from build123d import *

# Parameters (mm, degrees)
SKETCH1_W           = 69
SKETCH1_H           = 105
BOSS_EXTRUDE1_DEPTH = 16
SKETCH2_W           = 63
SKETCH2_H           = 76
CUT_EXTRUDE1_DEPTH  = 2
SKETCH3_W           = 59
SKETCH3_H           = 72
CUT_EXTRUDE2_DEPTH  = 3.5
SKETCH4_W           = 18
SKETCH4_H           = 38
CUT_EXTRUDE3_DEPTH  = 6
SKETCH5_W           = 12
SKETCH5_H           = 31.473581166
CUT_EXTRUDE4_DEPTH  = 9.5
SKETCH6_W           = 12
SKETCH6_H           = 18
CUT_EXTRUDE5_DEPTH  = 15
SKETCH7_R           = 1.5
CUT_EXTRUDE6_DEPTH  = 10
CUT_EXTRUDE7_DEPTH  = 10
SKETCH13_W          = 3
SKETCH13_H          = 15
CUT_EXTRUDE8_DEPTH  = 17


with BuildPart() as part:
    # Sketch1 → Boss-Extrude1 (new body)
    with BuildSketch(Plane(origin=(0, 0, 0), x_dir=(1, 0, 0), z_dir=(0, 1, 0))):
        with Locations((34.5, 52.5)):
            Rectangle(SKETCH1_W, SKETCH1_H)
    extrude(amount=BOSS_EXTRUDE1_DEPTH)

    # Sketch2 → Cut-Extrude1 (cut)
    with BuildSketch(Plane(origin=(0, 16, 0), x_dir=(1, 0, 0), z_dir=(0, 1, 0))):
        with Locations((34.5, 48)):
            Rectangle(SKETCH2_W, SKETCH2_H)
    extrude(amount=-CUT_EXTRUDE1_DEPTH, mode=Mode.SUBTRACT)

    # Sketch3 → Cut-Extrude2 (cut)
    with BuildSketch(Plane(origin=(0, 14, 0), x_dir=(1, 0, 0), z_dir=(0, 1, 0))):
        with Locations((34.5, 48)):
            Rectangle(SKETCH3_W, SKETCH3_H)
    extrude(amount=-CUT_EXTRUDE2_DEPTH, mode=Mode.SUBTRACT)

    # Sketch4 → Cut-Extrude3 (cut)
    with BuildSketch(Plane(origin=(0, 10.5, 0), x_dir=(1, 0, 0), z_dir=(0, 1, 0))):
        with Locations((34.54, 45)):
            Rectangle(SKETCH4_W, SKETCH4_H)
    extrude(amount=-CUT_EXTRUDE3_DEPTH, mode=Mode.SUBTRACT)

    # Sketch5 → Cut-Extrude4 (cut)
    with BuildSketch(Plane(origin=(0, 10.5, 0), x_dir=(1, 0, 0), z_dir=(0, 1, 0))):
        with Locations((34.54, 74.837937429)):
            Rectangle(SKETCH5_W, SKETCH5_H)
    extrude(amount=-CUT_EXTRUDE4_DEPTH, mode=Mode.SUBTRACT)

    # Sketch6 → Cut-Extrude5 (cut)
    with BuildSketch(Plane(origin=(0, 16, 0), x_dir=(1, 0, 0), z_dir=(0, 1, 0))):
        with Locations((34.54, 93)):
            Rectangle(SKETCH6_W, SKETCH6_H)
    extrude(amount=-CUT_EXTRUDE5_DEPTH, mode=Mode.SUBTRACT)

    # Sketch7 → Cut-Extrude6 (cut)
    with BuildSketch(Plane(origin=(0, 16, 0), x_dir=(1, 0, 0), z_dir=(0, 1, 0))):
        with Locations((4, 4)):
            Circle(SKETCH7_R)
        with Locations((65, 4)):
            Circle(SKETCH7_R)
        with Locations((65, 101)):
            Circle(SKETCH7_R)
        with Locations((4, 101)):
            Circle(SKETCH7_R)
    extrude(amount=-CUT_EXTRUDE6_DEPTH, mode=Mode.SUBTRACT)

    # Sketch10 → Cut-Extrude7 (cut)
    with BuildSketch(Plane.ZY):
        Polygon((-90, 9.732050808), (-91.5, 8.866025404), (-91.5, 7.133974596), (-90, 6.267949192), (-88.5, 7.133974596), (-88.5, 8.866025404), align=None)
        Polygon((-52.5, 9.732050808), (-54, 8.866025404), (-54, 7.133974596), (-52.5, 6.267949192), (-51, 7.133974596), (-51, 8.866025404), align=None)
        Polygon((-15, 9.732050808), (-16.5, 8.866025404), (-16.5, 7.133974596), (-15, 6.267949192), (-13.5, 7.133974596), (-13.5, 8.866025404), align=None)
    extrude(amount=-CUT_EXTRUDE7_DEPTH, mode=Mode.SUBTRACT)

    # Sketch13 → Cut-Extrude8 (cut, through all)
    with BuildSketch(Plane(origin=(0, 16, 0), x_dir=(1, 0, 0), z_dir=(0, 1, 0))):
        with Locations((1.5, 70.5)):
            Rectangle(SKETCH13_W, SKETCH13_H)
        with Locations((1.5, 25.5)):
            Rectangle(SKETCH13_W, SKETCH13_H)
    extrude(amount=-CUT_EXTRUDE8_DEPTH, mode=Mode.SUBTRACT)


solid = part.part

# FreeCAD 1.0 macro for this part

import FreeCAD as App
import Part
import Sketcher
Q = App.Units.Quantity

doc = App.newDocument("Part")
params = doc.addObject("Spreadsheet::Sheet", "Params")
for row, (alias, value) in enumerate([
    ("sketch1_width", "69 mm"),
    ("sketch1_height", "105 mm"),
    ("pad1_length", "16 mm"),
    ("sketch2_width", "63 mm"),
    ("sketch2_height", "76 mm"),
    ("pocket1_length", "2 mm"),
    ("sketch3_width", "59 mm"),
    ("sketch3_height", "72 mm"),
    ("pocket2_length", "3.5 mm"),
    ("sketch4_width", "18 mm"),
    ("sketch4_height", "38 mm"),
    ("pocket3_length", "6 mm"),
    ("sketch5_width", "12 mm"),
    ("pocket4_length", "9.5 mm"),
    ("sketch6_width", "12 mm"),
    ("sketch6_height", "18 mm"),
    ("pocket5_length", "15 mm"),
    ("sketch7_diameter", "3 mm"),
    ("pocket6_length", "10 mm"),
    ("pocket7_length", "10 mm"),
    ("sketch9_width", "3 mm"),
    ("sketch9_height", "15 mm"),
], start=1):
    params.set(f"A{row}", alias)
    params.set(f"B{row}", "=" + value)
    params.setAlias(f"B{row}", alias)

body = doc.addObject("PartDesign::Body", "Body")

# Sketch on XZ plane
sketch1 = body.newObject("Sketcher::SketchObject", "Sketch")
sketch1.AttachmentSupport = (doc.getObject("XZ_Plane"), [""])
sketch1.MapMode = "FlatFace"
sketch1.addGeometry([
    Part.LineSegment(App.Vector(0, -105, 0), App.Vector(0, 0, 0)),
    Part.LineSegment(App.Vector(0, 0, 0), App.Vector(69, 0, 0)),
    Part.LineSegment(App.Vector(69, 0, 0), App.Vector(69, -105, 0)),
    Part.LineSegment(App.Vector(69, -105, 0), App.Vector(0, -105, 0)),
], False)
sketch1.addConstraint([
    Sketcher.Constraint("Coincident", 0, 2, 1, 1),
    Sketcher.Constraint("Coincident", 1, 2, 2, 1),
    Sketcher.Constraint("Coincident", 2, 2, 3, 1),
    Sketcher.Constraint("Coincident", 3, 2, 0, 1),
    Sketcher.Constraint("Vertical", 0),
    Sketcher.Constraint("Horizontal", 1),
    Sketcher.Constraint("Vertical", 2),
    Sketcher.Constraint("Horizontal", 3),
    Sketcher.Constraint("Coincident", 0, 2, -1, 1),
    Sketcher.Constraint("DistanceX", 1, 1, 1, 2, Q("69 mm")),
    Sketcher.Constraint("DistanceY", 0, 1, 0, 2, Q("105 mm")),
])
sketch1.setExpression("Constraints[9]", "Params.sketch1_width")
sketch1.setExpression("Constraints[10]", "Params.sketch1_height")
pad1 = body.newObject("PartDesign::Pad", "Pad")
pad1.Profile = sketch1
pad1.setExpression("Length", "Params.pad1_length")
pad1.Reversed = True

# Sketch on XZ plane
sketch2 = body.newObject("Sketcher::SketchObject", "Sketch001")
sketch2.AttachmentSupport = (doc.getObject("XZ_Plane"), [""])
sketch2.MapMode = "FlatFace"
sketch2.AttachmentOffset = App.Placement(App.Vector(0, 0, -16), App.Rotation())
sketch2.addGeometry([
    Part.LineSegment(App.Vector(3, -86, 0), App.Vector(3, -10, 0)),
    Part.LineSegment(App.Vector(3, -10, 0), App.Vector(66, -10, 0)),
    Part.LineSegment(App.Vector(66, -10, 0), App.Vector(66, -86, 0)),
    Part.LineSegment(App.Vector(66, -86, 0), App.Vector(3, -86, 0)),
], False)
sketch2.addConstraint([
    Sketcher.Constraint("Coincident", 0, 2, 1, 1),
    Sketcher.Constraint("Coincident", 1, 2, 2, 1),
    Sketcher.Constraint("Coincident", 2, 2, 3, 1),
    Sketcher.Constraint("Coincident", 3, 2, 0, 1),
    Sketcher.Constraint("Vertical", 0),
    Sketcher.Constraint("Horizontal", 1),
    Sketcher.Constraint("Vertical", 2),
    Sketcher.Constraint("Horizontal", 3),
    Sketcher.Constraint("DistanceX", 1, 1, 1, 2, Q("63 mm")),
    Sketcher.Constraint("DistanceY", 0, 1, 0, 2, Q("76 mm")),
    Sketcher.Constraint("DistanceX", -1, 1, 0, 2, Q("3 mm")),
    Sketcher.Constraint("DistanceY", 0, 2, -1, 1, Q("10 mm")),
])
sketch2.setExpression("Constraints[8]", "Params.sketch2_width")
sketch2.setExpression("Constraints[9]", "Params.sketch2_height")
pocket1 = body.newObject("PartDesign::Pocket", "Pocket")
pocket1.Profile = sketch2
pocket1.setExpression("Length", "Params.pocket1_length")
pocket1.Reversed = True

# Sketch on XZ plane
sketch3 = body.newObject("Sketcher::SketchObject", "Sketch002")
sketch3.AttachmentSupport = (doc.getObject("XZ_Plane"), [""])
sketch3.MapMode = "FlatFace"
sketch3.AttachmentOffset = App.Placement(App.Vector(0, 0, -14), App.Rotation())
sketch3.addGeometry([
    Part.LineSegment(App.Vector(5, -84, 0), App.Vector(5, -12, 0)),
    Part.LineSegment(App.Vector(5, -12, 0), App.Vector(64, -12, 0)),
    Part.LineSegment(App.Vector(64, -12, 0), App.Vector(64, -84, 0)),
    Part.LineSegment(App.Vector(64, -84, 0), App.Vector(5, -84, 0)),
], False)
sketch3.addConstraint([
    Sketcher.Constraint("Coincident", 0, 2, 1, 1),
    Sketcher.Constraint("Coincident", 1, 2, 2, 1),
    Sketcher.Constraint("Coincident", 2, 2, 3, 1),
    Sketcher.Constraint("Coincident", 3, 2, 0, 1),
    Sketcher.Constraint("Vertical", 0),
    Sketcher.Constraint("Horizontal", 1),
    Sketcher.Constraint("Vertical", 2),
    Sketcher.Constraint("Horizontal", 3),
    Sketcher.Constraint("DistanceX", 1, 1, 1, 2, Q("59 mm")),
    Sketcher.Constraint("DistanceY", 0, 1, 0, 2, Q("72 mm")),
    Sketcher.Constraint("DistanceX", -1, 1, 0, 2, Q("5 mm")),
    Sketcher.Constraint("DistanceY", 0, 2, -1, 1, Q("12 mm")),
])
sketch3.setExpression("Constraints[8]", "Params.sketch3_width")
sketch3.setExpression("Constraints[9]", "Params.sketch3_height")
pocket2 = body.newObject("PartDesign::Pocket", "Pocket001")
pocket2.Profile = sketch3
pocket2.setExpression("Length", "Params.pocket2_length")
pocket2.Reversed = True

# Sketch on XZ plane
sketch4 = body.newObject("Sketcher::SketchObject", "Sketch003")
sketch4.AttachmentSupport = (doc.getObject("XZ_Plane"), [""])
sketch4.MapMode = "FlatFace"
sketch4.AttachmentOffset = App.Placement(App.Vector(0, 0, -10.5), App.Rotation())
sketch4.addGeometry([
    Part.LineSegment(App.Vector(26, -64, 0), App.Vector(26, -26, 0)),
    Part.LineSegment(App.Vector(26, -26, 0), App.Vector(44, -26, 0)),
    Part.LineSegment(App.Vector(44, -26, 0), App.Vector(44, -64, 0)),
    Part.LineSegment(App.Vector(44, -64, 0), App.Vector(26, -64, 0)),
], False)
sketch4.addConstraint([
    Sketcher.Constraint("Coincident", 0, 2, 1, 1),
    Sketcher.Constraint("Coincident", 1, 2, 2, 1),
    Sketcher.Constraint("Coincident", 2, 2, 3, 1),
    Sketcher.Constraint("Coincident", 3, 2, 0, 1),
    Sketcher.Constraint("Vertical", 0),
    Sketcher.Constraint("Horizontal", 1),
    Sketcher.Constraint("Vertical", 2),
    Sketcher.Constraint("Horizontal", 3),
    Sketcher.Constraint("DistanceX", 1, 1, 1, 2, Q("18 mm")),
    Sketcher.Constraint("DistanceY", 0, 1, 0, 2, Q("38 mm")),
    Sketcher.Constraint("DistanceY", 0, 2, -1, 1, Q("26 mm")),
    Sketcher.Constraint("DistanceX", -1, 1, 0, 2, Q("25.54 mm")),
])
sketch4.setExpression("Constraints[8]", "Params.sketch4_width")
sketch4.setExpression("Constraints[9]", "Params.sketch4_height")
pocket3 = body.newObject("PartDesign::Pocket", "Pocket002")
pocket3.Profile = sketch4
pocket3.setExpression("Length", "Params.pocket3_length")
pocket3.Reversed = True

# Sketch on XZ plane
sketch5 = body.newObject("Sketcher::SketchObject", "Sketch004")
sketch5.AttachmentSupport = (doc.getObject("XZ_Plane"), [""])
sketch5.MapMode = "FlatFace"
sketch5.AttachmentOffset = App.Placement(App.Vector(0, 0, -10.5), App.Rotation())
sketch5.addGeometry([
    Part.LineSegment(App.Vector(29, -91, 0), App.Vector(29, -59, 0)),
    Part.LineSegment(App.Vector(29, -59, 0), App.Vector(41, -59, 0)),
    Part.LineSegment(App.Vector(41, -59, 0), App.Vector(41, -91, 0)),
    Part.LineSegment(App.Vector(41, -91, 0), App.Vector(29, -91, 0)),
], False)
sketch5.addConstraint([
    Sketcher.Constraint("Coincident", 0, 2, 1, 1),
    Sketcher.Constraint("Coincident", 1, 2, 2, 1),
    Sketcher.Constraint("Coincident", 2, 2, 3, 1),
    Sketcher.Constraint("Coincident", 3, 2, 0, 1),
    Sketcher.Constraint("Vertical", 0),
    Sketcher.Constraint("Horizontal", 1),
    Sketcher.Constraint("Vertical", 2),
    Sketcher.Constraint("Horizontal", 3),
    Sketcher.Constraint("DistanceX", 1, 1, 1, 2, Q("12 mm")),
    Sketcher.Constraint("DistanceX", -1, 1, 0, 2, Q("28.54 mm")),
    Sketcher.Constraint("DistanceY", 0, 1, 0, 2, Q("31.473581 mm")),
    Sketcher.Constraint("DistanceY", 2, 2, -1, 1, Q("90.574728 mm")),
])
sketch5.setExpression("Constraints[8]", "Params.sketch5_width")
pocket4 = body.newObject("PartDesign::Pocket", "Pocket003")
pocket4.Profile = sketch5
pocket4.setExpression("Length", "Params.pocket4_length")
pocket4.Reversed = True

# Sketch on XZ plane
sketch6 = body.newObject("Sketcher::SketchObject", "Sketch005")
sketch6.AttachmentSupport = (doc.getObject("XZ_Plane"), [""])
sketch6.MapMode = "FlatFace"
sketch6.AttachmentOffset = App.Placement(App.Vector(0, 0, -16), App.Rotation())
sketch6.addGeometry([
    Part.LineSegment(App.Vector(29, -102, 0), App.Vector(29, -84, 0)),
    Part.LineSegment(App.Vector(29, -84, 0), App.Vector(41, -84, 0)),
    Part.LineSegment(App.Vector(41, -84, 0), App.Vector(41, -102, 0)),
    Part.LineSegment(App.Vector(41, -102, 0), App.Vector(29, -102, 0)),
], False)
sketch6.addConstraint([
    Sketcher.Constraint("Coincident", 0, 2, 1, 1),
    Sketcher.Constraint("Coincident", 1, 2, 2, 1),
    Sketcher.Constraint("Coincident", 2, 2, 3, 1),
    Sketcher.Constraint("Coincident", 3, 2, 0, 1),
    Sketcher.Constraint("Vertical", 0),
    Sketcher.Constraint("Horizontal", 1),
    Sketcher.Constraint("Vertical", 2),
    Sketcher.Constraint("Horizontal", 3),
    Sketcher.Constraint("DistanceX", 1, 1, 1, 2, Q("12 mm")),
    Sketcher.Constraint("DistanceY", 0, 1, 0, 2, Q("18 mm")),
    Sketcher.Constraint("DistanceY", 0, 2, -1, 1, Q("84 mm")),
    Sketcher.Constraint("DistanceX", -1, 1, 0, 2, Q("28.54 mm")),
])
sketch6.setExpression("Constraints[8]", "Params.sketch6_width")
sketch6.setExpression("Constraints[9]", "Params.sketch6_height")
pocket5 = body.newObject("PartDesign::Pocket", "Pocket004")
pocket5.Profile = sketch6
pocket5.setExpression("Length", "Params.pocket5_length")
pocket5.Reversed = True

# Sketch on XZ plane
sketch7 = body.newObject("Sketcher::SketchObject", "Sketch006")
sketch7.AttachmentSupport = (doc.getObject("XZ_Plane"), [""])
sketch7.MapMode = "FlatFace"
sketch7.AttachmentOffset = App.Placement(App.Vector(0, 0, -16), App.Rotation())
sketch7.addGeometry([
    Part.Circle(App.Vector(4, -4, 0), App.Vector(0, 0, 1), 1.5),
    Part.Circle(App.Vector(65, -4, 0), App.Vector(0, 0, 1), 1.5),
    Part.Circle(App.Vector(65, -101, 0), App.Vector(0, 0, 1), 1.5),
    Part.Circle(App.Vector(4, -101, 0), App.Vector(0, 0, 1), 1.5),
], False)
sketch7.addConstraint([
    Sketcher.Constraint("Equal", 0, 1),
    Sketcher.Constraint("Equal", 1, 2),
    Sketcher.Constraint("Equal", 2, 3),
    Sketcher.Constraint("Horizontal", 0, 3, 1, 3),
    Sketcher.Constraint("Horizontal", 2, 3, 3, 3),
    Sketcher.Constraint("Vertical", 1, 3, 2, 3),
    Sketcher.Constraint("Vertical", 0, 3, 3, 3),
    Sketcher.Constraint("Diameter", 0, Q("3 mm")),
    Sketcher.Constraint("DistanceX", -1, 1, 0, 3, Q("4 mm")),
    Sketcher.Constraint("DistanceY", 0, 3, -1, 1, Q("4 mm")),
    Sketcher.Constraint("DistanceX", -1, 1, 1, 3, Q("65 mm")),
    Sketcher.Constraint("DistanceY", 2, 3, -1, 1, Q("101 mm")),
])
sketch7.setExpression("Constraints[7]", "Params.sketch7_diameter")
pocket6 = body.newObject("PartDesign::Pocket", "Pocket005")
pocket6.Profile = sketch7
pocket6.setExpression("Length", "Params.pocket6_length")
pocket6.Reversed = True

# Sketch on YZ plane
sketch8 = body.newObject("Sketcher::SketchObject", "Sketch007")
sketch8.AttachmentSupport = (doc.getObject("YZ_Plane"), [""])
sketch8.MapMode = "FlatFace"
sketch8.addGeometry([
    Part.LineSegment(App.Vector(9.7, -90, 0), App.Vector(8.9, -91.5, 0)),  # 0
    Part.LineSegment(App.Vector(8.9, -91.5, 0), App.Vector(7.1, -91.5, 0)),  # 1
    Part.LineSegment(App.Vector(7.1, -91.5, 0), App.Vector(6.3, -90, 0)),  # 2
    Part.LineSegment(App.Vector(6.3, -90, 0), App.Vector(7.1, -88.5, 0)),  # 3
    Part.LineSegment(App.Vector(7.1, -88.5, 0), App.Vector(8.9, -88.5, 0)),  # 4
    Part.LineSegment(App.Vector(8.9, -88.5, 0), App.Vector(9.7, -90, 0)),  # 5
    Part.LineSegment(App.Vector(9.7, -52.5, 0), App.Vector(8.9, -54, 0)),  # 6
    Part.LineSegment(App.Vector(8.9, -54, 0), App.Vector(7.1, -54, 0)),  # 7
    Part.LineSegment(App.Vector(7.1, -54, 0), App.Vector(6.3, -52.5, 0)),  # 8
    Part.LineSegment(App.Vector(6.3, -52.5, 0), App.Vector(7.1, -51, 0)),  # 9
    Part.LineSegment(App.Vector(7.1, -51, 0), App.Vector(8.9, -51, 0)),  # 10
    Part.LineSegment(App.Vector(8.9, -51, 0), App.Vector(9.7, -52.5, 0)),  # 11
    Part.LineSegment(App.Vector(9.7, -15, 0), App.Vector(8.9, -16.5, 0)),  # 12
    Part.LineSegment(App.Vector(8.9, -16.5, 0), App.Vector(7.1, -16.5, 0)),  # 13
    Part.LineSegment(App.Vector(7.1, -16.5, 0), App.Vector(6.3, -15, 0)),  # 14
    Part.LineSegment(App.Vector(6.3, -15, 0), App.Vector(7.1, -13.5, 0)),  # 15
    Part.LineSegment(App.Vector(7.1, -13.5, 0), App.Vector(8.9, -13.5, 0)),  # 16
    Part.LineSegment(App.Vector(8.9, -13.5, 0), App.Vector(9.7, -15, 0)),  # 17
], False)
sketch8.addConstraint([
    Sketcher.Constraint("Coincident", 0, 2, 1, 1),
    Sketcher.Constraint("Coincident", 1, 2, 2, 1),
    Sketcher.Constraint("Coincident", 2, 2, 3, 1),
    Sketcher.Constraint("Coincident", 3, 2, 4, 1),
    Sketcher.Constraint("Coincident", 4, 2, 5, 1),
    Sketcher.Constraint("Coincident", 5, 2, 0, 1),
    Sketcher.Constraint("Coincident", 6, 2, 7, 1),
    Sketcher.Constraint("Coincident", 7, 2, 8, 1),
    Sketcher.Constraint("Coincident", 8, 2, 9, 1),
    Sketcher.Constraint("Coincident", 9, 2, 10, 1),
    Sketcher.Constraint("Coincident", 10, 2, 11, 1),
    Sketcher.Constraint("Coincident", 11, 2, 6, 1),
    Sketcher.Constraint("Coincident", 12, 2, 13, 1),
    Sketcher.Constraint("Coincident", 13, 2, 14, 1),
    Sketcher.Constraint("Coincident", 14, 2, 15, 1),
    Sketcher.Constraint("Coincident", 15, 2, 16, 1),
    Sketcher.Constraint("Coincident", 16, 2, 17, 1),
    Sketcher.Constraint("Coincident", 17, 2, 12, 1),
    Sketcher.Constraint("Horizontal", 1),
    Sketcher.Constraint("Horizontal", 4),
    Sketcher.Constraint("Horizontal", 7),
    Sketcher.Constraint("Horizontal", 10),
    Sketcher.Constraint("Horizontal", 13),
    Sketcher.Constraint("Horizontal", 16),
    Sketcher.Constraint("Parallel", 0, 3),
    Sketcher.Constraint("Parallel", 2, 5),
    Sketcher.Constraint("Parallel", 3, 6),
    Sketcher.Constraint("Parallel", 5, 8),
    Sketcher.Constraint("Parallel", 6, 9),
    Sketcher.Constraint("Parallel", 8, 11),
    Sketcher.Constraint("Parallel", 9, 12),
    Sketcher.Constraint("Parallel", 11, 14),
    Sketcher.Constraint("Parallel", 12, 15),
    Sketcher.Constraint("Parallel", 14, 17),
    Sketcher.Constraint("Horizontal", 2, 2, 5, 2),
    Sketcher.Constraint("Horizontal", 8, 2, 11, 2),
    Sketcher.Constraint("Horizontal", 14, 2, 17, 2),
    Sketcher.Constraint("Vertical", 1, 2, 3, 2),
    Sketcher.Constraint("Vertical", 0, 2, 4, 2),
    Sketcher.Constraint("Vertical", 4, 2, 6, 2),
    Sketcher.Constraint("Vertical", 3, 2, 7, 2),
    Sketcher.Constraint("Vertical", 2, 2, 8, 2),
    Sketcher.Constraint("Vertical", 7, 2, 9, 2),
    Sketcher.Constraint("Vertical", 10, 2, 12, 2),
    Sketcher.Constraint("Vertical", 9, 2, 13, 2),
    Sketcher.Constraint("Vertical", 8, 2, 14, 2),
    Sketcher.Constraint("Vertical", 13, 2, 15, 2),
    Sketcher.Constraint("Angle", 0, Q("-120 deg")),
    Sketcher.Constraint("DistanceY", 2, 2, -1, 1, Q("90 mm")),
    Sketcher.Constraint("DistanceY", 6, 2, -1, 1, Q("54 mm")),
    Sketcher.Constraint("DistanceY", 9, 2, -1, 1, Q("51 mm")),
    Sketcher.Constraint("DistanceY", 14, 2, -1, 1, Q("15 mm")),
    Sketcher.Constraint("DistanceX", 1, 2, 1, 1, Q("1.732051 mm")),
    Sketcher.Constraint("DistanceX", -1, 1, 2, 2, Q("6.267949 mm")),
])
pocket7 = body.newObject("PartDesign::Pocket", "Pocket006")
pocket7.Profile = sketch8
pocket7.setExpression("Length", "Params.pocket7_length")
pocket7.Reversed = True

# Sketch on XZ plane
sketch9 = body.newObject("Sketcher::SketchObject", "Sketch008")
sketch9.AttachmentSupport = (doc.getObject("XZ_Plane"), [""])
sketch9.MapMode = "FlatFace"
sketch9.AttachmentOffset = App.Placement(App.Vector(0, 0, -16), App.Rotation())
sketch9.addGeometry([
    Part.LineSegment(App.Vector(0, -78, 0), App.Vector(0, -63, 0)),  # 0
    Part.LineSegment(App.Vector(0, -63, 0), App.Vector(3, -63, 0)),  # 1
    Part.LineSegment(App.Vector(3, -63, 0), App.Vector(3, -78, 0)),  # 2
    Part.LineSegment(App.Vector(3, -78, 0), App.Vector(0, -78, 0)),  # 3
    Part.LineSegment(App.Vector(0, -33, 0), App.Vector(0, -18, 0)),  # 4
    Part.LineSegment(App.Vector(0, -18, 0), App.Vector(3, -18, 0)),  # 5
    Part.LineSegment(App.Vector(3, -18, 0), App.Vector(3, -33, 0)),  # 6
    Part.LineSegment(App.Vector(3, -33, 0), App.Vector(0, -33, 0)),  # 7
], False)
sketch9.addConstraint([
    Sketcher.Constraint("Coincident", 0, 2, 1, 1),
    Sketcher.Constraint("Coincident", 1, 2, 2, 1),
    Sketcher.Constraint("Coincident", 2, 2, 3, 1),
    Sketcher.Constraint("Coincident", 3, 2, 0, 1),
    Sketcher.Constraint("Coincident", 4, 2, 5, 1),
    Sketcher.Constraint("Coincident", 5, 2, 6, 1),
    Sketcher.Constraint("Coincident", 6, 2, 7, 1),
    Sketcher.Constraint("Coincident", 7, 2, 4, 1),
    Sketcher.Constraint("Vertical", 0),
    Sketcher.Constraint("Horizontal", 1),
    Sketcher.Constraint("Vertical", 2),
    Sketcher.Constraint("Horizontal", 3),
    Sketcher.Constraint("Vertical", 4),
    Sketcher.Constraint("Horizontal", 5),
    Sketcher.Constraint("Vertical", 6),
    Sketcher.Constraint("Horizontal", 7),
    Sketcher.Constraint("PointOnObject", 0, 2, -2),
    Sketcher.Constraint("PointOnObject", 4, 2, -2),
    Sketcher.Constraint("Vertical", 2, 2, 5, 2),
    Sketcher.Constraint("Equal", 2, 4),
    Sketcher.Constraint("DistanceX", 1, 1, 1, 2, Q("3 mm")),
    Sketcher.Constraint("DistanceY", 0, 1, 0, 2, Q("15 mm")),
    Sketcher.Constraint("DistanceY", 0, 2, -1, 1, Q("63 mm")),
    Sketcher.Constraint("DistanceY", 4, 2, -1, 1, Q("18 mm")),
])
sketch9.setExpression("Constraints[20]", "Params.sketch9_width")
sketch9.setExpression("Constraints[21]", "Params.sketch9_height")
pocket8 = body.newObject("PartDesign::Pocket", "Pocket007")
pocket8.Profile = sketch9
pocket8.Type = "ThroughAll"
pocket8.Reversed = True

doc.recompute()
